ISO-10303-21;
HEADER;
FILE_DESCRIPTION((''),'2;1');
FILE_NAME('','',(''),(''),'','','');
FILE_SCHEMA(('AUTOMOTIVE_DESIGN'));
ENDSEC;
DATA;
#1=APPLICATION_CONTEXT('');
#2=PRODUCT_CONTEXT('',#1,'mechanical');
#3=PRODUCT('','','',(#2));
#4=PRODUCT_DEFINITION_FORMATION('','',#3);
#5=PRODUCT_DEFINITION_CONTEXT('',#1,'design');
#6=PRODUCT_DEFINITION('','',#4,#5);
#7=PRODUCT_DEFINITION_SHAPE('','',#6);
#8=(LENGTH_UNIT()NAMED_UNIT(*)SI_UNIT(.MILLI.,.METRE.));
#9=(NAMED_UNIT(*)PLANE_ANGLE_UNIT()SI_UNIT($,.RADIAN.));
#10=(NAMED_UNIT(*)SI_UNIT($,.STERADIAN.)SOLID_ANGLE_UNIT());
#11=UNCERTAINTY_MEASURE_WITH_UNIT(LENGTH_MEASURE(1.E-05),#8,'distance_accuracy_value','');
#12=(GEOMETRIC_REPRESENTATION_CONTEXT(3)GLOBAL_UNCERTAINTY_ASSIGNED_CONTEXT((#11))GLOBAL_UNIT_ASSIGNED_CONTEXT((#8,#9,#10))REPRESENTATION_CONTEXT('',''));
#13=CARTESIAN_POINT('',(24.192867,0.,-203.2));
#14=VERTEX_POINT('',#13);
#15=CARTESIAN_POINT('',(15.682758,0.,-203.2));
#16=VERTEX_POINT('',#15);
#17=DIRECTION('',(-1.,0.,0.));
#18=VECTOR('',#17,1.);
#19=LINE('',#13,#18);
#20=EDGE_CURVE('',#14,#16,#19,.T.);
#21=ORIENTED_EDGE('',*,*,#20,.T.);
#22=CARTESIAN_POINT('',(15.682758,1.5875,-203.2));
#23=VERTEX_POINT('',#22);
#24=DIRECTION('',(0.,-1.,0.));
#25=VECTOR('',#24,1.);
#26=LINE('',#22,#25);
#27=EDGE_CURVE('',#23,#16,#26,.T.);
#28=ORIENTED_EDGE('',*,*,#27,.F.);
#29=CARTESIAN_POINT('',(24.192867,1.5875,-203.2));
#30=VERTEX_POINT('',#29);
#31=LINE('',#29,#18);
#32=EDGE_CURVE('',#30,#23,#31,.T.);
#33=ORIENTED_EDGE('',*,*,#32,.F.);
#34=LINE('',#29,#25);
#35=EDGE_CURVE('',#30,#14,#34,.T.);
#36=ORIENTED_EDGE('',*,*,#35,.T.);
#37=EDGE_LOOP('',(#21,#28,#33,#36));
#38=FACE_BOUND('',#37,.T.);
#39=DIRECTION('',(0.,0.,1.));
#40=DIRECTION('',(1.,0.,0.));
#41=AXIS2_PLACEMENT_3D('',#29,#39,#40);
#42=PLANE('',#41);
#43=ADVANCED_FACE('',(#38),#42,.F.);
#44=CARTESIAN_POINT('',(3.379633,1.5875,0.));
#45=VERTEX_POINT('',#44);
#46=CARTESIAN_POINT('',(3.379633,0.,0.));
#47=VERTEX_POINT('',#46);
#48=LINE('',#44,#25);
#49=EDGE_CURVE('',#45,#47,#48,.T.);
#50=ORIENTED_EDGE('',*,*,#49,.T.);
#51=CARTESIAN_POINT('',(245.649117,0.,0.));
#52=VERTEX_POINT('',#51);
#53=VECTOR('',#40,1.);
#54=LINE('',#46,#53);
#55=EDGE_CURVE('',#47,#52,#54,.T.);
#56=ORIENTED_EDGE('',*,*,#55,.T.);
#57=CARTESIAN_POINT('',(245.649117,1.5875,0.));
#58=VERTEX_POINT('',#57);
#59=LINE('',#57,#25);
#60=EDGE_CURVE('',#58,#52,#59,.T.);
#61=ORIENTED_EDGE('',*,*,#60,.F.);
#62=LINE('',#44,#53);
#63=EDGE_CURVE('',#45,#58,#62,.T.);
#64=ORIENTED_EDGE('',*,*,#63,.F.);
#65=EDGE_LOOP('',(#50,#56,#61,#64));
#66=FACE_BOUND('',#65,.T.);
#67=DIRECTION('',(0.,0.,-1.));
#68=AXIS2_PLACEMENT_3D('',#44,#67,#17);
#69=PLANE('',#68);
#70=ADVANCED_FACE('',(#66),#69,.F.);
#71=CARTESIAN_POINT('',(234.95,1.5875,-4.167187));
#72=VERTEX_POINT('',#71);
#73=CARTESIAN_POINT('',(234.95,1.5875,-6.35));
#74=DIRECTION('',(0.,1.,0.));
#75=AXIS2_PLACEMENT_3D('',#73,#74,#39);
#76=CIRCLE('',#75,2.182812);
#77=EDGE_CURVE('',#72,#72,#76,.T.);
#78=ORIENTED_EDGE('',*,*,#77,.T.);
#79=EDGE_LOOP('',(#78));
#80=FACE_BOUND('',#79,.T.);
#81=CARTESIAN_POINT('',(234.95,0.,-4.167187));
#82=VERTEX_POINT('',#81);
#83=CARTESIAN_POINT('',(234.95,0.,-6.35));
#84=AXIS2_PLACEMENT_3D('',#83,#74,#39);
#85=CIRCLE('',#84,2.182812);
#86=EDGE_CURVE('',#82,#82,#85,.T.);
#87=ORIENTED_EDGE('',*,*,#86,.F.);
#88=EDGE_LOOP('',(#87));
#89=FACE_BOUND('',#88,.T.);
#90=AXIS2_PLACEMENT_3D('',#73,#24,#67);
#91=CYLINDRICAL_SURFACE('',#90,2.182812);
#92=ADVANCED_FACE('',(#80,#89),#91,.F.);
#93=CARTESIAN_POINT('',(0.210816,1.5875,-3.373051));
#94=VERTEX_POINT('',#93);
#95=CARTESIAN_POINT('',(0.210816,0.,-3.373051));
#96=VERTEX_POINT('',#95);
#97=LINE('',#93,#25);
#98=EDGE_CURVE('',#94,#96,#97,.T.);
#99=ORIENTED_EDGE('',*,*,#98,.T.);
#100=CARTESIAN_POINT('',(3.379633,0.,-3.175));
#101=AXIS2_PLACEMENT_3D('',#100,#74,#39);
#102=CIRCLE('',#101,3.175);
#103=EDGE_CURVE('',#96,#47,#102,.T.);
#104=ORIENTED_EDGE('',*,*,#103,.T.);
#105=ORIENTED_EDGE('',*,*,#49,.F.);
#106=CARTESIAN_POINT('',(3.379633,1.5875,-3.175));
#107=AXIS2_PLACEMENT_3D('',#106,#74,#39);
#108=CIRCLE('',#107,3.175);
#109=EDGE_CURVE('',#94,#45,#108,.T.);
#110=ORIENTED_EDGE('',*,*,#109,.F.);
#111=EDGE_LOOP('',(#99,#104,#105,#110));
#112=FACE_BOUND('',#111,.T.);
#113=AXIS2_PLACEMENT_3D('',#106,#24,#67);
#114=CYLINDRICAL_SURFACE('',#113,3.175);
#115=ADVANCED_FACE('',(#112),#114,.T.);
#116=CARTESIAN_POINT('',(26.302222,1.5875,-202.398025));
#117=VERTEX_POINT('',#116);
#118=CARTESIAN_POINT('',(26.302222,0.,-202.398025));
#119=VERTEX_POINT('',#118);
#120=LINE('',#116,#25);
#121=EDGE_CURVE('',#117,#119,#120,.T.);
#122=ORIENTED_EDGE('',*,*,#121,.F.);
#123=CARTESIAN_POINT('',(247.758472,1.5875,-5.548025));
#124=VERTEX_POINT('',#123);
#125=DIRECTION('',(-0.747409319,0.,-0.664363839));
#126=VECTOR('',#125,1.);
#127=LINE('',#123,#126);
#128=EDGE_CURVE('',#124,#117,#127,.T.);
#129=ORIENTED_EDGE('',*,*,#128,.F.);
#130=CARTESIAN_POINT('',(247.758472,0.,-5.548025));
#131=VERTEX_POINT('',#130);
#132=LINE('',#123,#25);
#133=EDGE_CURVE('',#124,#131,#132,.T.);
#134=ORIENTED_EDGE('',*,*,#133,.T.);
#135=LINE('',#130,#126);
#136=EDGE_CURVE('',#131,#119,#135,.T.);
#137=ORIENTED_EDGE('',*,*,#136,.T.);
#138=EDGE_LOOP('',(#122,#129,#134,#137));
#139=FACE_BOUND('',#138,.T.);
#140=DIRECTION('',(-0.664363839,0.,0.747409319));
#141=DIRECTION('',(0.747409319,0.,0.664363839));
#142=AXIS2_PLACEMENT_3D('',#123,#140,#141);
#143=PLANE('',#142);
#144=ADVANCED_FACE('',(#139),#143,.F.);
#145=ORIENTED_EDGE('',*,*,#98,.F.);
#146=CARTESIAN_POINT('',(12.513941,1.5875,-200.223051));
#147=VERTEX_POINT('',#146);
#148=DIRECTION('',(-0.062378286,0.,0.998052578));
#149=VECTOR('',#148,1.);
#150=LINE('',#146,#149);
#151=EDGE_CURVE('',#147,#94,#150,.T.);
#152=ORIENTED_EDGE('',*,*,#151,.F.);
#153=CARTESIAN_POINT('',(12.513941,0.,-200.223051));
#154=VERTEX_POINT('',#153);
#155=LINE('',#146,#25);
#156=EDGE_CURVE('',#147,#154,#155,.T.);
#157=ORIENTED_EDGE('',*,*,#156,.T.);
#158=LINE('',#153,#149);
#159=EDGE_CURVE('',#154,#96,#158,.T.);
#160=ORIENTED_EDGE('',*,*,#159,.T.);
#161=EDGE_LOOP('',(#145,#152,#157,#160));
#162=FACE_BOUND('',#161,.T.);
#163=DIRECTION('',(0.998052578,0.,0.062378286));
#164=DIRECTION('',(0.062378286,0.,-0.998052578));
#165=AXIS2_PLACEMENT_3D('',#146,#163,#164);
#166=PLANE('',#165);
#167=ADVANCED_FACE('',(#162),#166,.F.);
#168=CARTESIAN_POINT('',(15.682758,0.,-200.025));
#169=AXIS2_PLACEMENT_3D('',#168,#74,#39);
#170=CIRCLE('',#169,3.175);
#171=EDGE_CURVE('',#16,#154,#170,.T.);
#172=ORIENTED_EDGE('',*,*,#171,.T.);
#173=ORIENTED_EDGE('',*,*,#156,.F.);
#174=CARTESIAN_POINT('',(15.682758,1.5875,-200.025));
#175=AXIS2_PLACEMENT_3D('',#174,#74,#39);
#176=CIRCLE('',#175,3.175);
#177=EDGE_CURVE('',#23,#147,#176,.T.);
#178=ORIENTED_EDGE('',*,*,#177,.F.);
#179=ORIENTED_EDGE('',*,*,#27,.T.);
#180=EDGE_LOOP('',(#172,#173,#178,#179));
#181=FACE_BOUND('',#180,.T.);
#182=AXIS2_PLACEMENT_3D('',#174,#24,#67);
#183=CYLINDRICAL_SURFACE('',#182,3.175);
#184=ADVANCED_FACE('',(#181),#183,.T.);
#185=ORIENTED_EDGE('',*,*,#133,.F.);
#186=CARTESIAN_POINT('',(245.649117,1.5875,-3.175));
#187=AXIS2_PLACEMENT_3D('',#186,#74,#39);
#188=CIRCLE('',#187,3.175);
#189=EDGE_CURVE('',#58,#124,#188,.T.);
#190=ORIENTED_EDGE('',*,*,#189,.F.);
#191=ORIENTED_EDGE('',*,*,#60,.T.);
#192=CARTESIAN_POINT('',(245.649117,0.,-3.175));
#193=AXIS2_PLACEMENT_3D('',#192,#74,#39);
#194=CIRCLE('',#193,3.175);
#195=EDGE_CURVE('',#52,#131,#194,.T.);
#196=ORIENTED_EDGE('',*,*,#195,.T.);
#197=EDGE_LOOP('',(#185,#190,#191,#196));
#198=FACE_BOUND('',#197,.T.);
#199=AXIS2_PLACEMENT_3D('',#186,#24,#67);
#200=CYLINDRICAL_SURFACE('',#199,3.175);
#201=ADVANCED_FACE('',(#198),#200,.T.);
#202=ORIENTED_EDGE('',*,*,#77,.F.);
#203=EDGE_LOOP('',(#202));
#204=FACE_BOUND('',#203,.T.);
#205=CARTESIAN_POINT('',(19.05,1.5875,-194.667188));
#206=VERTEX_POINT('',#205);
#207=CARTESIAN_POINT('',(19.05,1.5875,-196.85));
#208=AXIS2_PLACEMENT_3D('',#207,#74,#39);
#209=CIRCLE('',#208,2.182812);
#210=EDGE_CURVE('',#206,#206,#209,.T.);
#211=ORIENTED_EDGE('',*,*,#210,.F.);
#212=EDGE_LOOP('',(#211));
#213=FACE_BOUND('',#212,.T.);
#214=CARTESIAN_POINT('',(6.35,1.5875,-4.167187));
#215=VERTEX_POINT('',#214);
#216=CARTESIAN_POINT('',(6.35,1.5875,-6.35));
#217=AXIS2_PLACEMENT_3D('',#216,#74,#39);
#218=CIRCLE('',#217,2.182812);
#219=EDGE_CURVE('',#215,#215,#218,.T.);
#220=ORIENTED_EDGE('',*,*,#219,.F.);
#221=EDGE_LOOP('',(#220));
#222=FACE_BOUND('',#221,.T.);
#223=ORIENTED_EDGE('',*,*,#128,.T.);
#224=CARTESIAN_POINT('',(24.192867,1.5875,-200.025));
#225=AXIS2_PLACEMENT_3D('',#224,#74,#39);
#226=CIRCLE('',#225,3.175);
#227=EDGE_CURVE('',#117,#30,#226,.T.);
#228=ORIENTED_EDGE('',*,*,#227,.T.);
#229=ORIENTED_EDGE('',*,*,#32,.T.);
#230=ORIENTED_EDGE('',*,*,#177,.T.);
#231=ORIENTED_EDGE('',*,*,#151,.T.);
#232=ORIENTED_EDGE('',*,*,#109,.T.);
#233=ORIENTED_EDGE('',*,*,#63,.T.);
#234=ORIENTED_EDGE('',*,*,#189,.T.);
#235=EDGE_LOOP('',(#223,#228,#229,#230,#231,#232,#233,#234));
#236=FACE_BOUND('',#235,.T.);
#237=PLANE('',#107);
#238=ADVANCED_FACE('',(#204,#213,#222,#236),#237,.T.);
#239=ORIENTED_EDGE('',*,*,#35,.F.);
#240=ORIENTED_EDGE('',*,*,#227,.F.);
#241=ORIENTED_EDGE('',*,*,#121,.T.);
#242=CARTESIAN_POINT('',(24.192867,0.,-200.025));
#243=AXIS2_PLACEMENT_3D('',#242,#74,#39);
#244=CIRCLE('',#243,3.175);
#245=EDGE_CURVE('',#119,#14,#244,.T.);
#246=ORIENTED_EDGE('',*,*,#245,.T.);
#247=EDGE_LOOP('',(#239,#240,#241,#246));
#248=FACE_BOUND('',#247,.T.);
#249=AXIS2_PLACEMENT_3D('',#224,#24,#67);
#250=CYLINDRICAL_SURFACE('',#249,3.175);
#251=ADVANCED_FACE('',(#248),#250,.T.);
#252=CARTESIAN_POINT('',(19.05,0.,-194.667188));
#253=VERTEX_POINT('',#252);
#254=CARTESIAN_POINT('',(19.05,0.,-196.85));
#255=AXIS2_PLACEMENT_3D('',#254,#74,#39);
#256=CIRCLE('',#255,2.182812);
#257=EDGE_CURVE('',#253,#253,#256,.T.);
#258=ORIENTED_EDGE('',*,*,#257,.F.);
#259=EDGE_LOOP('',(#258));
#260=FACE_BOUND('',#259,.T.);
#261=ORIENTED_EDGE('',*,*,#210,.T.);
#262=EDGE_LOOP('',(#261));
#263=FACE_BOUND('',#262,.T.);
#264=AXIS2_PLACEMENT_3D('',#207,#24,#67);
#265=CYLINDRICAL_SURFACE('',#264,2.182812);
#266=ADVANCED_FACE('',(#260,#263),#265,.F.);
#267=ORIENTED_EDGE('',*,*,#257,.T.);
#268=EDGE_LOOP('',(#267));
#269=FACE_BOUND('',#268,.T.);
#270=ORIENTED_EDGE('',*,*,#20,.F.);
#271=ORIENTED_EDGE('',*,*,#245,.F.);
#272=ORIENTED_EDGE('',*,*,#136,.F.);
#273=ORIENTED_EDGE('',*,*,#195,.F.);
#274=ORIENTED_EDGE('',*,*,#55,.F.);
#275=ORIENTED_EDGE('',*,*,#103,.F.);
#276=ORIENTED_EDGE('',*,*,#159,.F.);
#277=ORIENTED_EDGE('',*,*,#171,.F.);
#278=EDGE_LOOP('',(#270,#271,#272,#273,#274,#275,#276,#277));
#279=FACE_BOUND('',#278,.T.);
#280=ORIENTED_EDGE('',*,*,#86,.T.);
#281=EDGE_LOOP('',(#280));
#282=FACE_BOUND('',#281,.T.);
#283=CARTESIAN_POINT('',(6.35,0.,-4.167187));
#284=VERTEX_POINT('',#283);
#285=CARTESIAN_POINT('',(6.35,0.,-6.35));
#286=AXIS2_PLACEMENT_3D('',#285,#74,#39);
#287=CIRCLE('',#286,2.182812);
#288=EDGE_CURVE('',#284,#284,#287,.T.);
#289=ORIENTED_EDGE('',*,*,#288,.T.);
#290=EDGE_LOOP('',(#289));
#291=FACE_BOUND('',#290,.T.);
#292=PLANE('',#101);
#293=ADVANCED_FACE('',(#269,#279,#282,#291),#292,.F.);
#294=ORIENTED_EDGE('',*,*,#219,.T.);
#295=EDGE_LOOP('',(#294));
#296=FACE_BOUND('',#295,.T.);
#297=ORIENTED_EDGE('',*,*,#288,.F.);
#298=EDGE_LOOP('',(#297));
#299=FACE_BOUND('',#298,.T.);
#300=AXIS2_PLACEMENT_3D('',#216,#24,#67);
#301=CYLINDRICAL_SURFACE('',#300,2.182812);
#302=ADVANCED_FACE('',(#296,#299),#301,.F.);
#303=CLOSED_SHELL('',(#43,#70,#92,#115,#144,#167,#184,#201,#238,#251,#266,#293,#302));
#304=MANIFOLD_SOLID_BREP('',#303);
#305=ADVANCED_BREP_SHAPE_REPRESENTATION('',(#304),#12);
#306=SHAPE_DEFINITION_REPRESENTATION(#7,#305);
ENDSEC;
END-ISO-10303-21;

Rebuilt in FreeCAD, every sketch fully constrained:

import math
import FreeCAD as App
import Part
import Sketcher
Q = App.Units.Quantity

doc = App.newDocument("Part")
body = doc.addObject("PartDesign::Body", "Body")

# Sketch on XZ plane
sketch1 = body.newObject("Sketcher::SketchObject", "Sketch")
sketch1.AttachmentSupport = (doc.getObject("XZ_Plane"), [""])
sketch1.MapMode = "FlatFace"
sketch1.addGeometry([
    Part.LineSegment(App.Vector(3.4, 0, 0), App.Vector(245.6, 0, 0)),  # 0
    Part.ArcOfCircle(Part.Circle(App.Vector(245.6, -3.2, 0), App.Vector(0, 0, 1), 3.2), math.radians(-48), math.radians(90)),  # 1
    Part.LineSegment(App.Vector(247.8, -5.5, 0), App.Vector(26.3, -202.4, 0)),  # 2
    Part.ArcOfCircle(Part.Circle(App.Vector(24.2, -200, 0), App.Vector(0, 0, 1), 3.2), math.radians(-90), math.radians(-48)),  # 3
    Part.LineSegment(App.Vector(24.2, -203.2, 0), App.Vector(15.7, -203.2, 0)),  # 4
    Part.ArcOfCircle(Part.Circle(App.Vector(15.7, -200, 0), App.Vector(0, 0, 1), 3.2), math.radians(-176), math.radians(-90)),  # 5
    Part.LineSegment(App.Vector(12.5, -200.2, 0), App.Vector(0.2, -3.4, 0)),  # 6
    Part.ArcOfCircle(Part.Circle(App.Vector(3.4, -3.2, 0), App.Vector(0, 0, 1), 3.2), math.radians(90), math.radians(184)),  # 7
    Part.Circle(App.Vector(6.3, -6.3, 0), App.Vector(0, 0, 1), 2.2),  # 8
    Part.Circle(App.Vector(234.9, -6.3, 0), App.Vector(0, 0, 1), 2.2),  # 9
    Part.Circle(App.Vector(19.1, -196.8, 0), App.Vector(0, 0, 1), 2.2),  # 10
], False)
sketch1.addConstraint([
    Sketcher.Constraint("Tangent", 0, 2, 1, 2),
    Sketcher.Constraint("Tangent", 1, 1, 2, 1),
    Sketcher.Constraint("Tangent", 2, 2, 3, 2),
    Sketcher.Constraint("Tangent", 3, 1, 4, 1),
    Sketcher.Constraint("Tangent", 4, 2, 5, 2),
    Sketcher.Constraint("Tangent", 5, 1, 6, 1),
    Sketcher.Constraint("Tangent", 6, 2, 7, 2),
    Sketcher.Constraint("Tangent", 7, 1, 0, 1),
    Sketcher.Constraint("Horizontal", 0),
    Sketcher.Constraint("Horizontal", 4),
    Sketcher.Constraint("Equal", 1, 3),
    Sketcher.Constraint("Equal", 3, 5),
    Sketcher.Constraint("Equal", 5, 7),
    Sketcher.Constraint("Equal", 8, 9),
    Sketcher.Constraint("Equal", 9, 10),
    Sketcher.Constraint("PointOnObject", 0, 2, -1),
    Sketcher.Constraint("Horizontal", 8, 3, 9, 3),
    Sketcher.Constraint("Diameter", 8, Q("0.171875 in")),
    Sketcher.Constraint("DistanceY", 3, 1, -1, 1, Q("8 in")),
    Sketcher.Constraint("Radius", 1, Q("0.125 in")),
    Sketcher.Constraint("DistanceX", 8, 3, 9, 3, Q("9 in")),
    Sketcher.Constraint("DistanceX", 8, 3, 10, 3, Q("0.5 in")),
    Sketcher.Constraint("DistanceY", 10, 3, 8, 3, Q("7.5 in")),
    Sketcher.Constraint("DistanceX", -1, 1, 8, 3, Q("0.25 in")),
    Sketcher.Constraint("DistanceY", 8, 3, -1, 1, Q("0.25 in")),
    Sketcher.Constraint("DistanceX", 3, 3, 1, 3, Q("8.71875 in")),
    Sketcher.Constraint("DistanceX", 7, 3, 5, 3, Q("0.484375 in")),
    Sketcher.Constraint("DistanceX", -1, 1, 6, 2, Q("0.0082998 in")),
    Sketcher.Constraint("DistanceX", 4, 2, 4, 1, Q("8.51011 mm")),
])
pad1 = body.newObject("PartDesign::Pad", "Pad")
pad1.Profile = sketch1
pad1.Length = Q("0.0625 in")
pad1.Reversed = True

doc.recompute()
